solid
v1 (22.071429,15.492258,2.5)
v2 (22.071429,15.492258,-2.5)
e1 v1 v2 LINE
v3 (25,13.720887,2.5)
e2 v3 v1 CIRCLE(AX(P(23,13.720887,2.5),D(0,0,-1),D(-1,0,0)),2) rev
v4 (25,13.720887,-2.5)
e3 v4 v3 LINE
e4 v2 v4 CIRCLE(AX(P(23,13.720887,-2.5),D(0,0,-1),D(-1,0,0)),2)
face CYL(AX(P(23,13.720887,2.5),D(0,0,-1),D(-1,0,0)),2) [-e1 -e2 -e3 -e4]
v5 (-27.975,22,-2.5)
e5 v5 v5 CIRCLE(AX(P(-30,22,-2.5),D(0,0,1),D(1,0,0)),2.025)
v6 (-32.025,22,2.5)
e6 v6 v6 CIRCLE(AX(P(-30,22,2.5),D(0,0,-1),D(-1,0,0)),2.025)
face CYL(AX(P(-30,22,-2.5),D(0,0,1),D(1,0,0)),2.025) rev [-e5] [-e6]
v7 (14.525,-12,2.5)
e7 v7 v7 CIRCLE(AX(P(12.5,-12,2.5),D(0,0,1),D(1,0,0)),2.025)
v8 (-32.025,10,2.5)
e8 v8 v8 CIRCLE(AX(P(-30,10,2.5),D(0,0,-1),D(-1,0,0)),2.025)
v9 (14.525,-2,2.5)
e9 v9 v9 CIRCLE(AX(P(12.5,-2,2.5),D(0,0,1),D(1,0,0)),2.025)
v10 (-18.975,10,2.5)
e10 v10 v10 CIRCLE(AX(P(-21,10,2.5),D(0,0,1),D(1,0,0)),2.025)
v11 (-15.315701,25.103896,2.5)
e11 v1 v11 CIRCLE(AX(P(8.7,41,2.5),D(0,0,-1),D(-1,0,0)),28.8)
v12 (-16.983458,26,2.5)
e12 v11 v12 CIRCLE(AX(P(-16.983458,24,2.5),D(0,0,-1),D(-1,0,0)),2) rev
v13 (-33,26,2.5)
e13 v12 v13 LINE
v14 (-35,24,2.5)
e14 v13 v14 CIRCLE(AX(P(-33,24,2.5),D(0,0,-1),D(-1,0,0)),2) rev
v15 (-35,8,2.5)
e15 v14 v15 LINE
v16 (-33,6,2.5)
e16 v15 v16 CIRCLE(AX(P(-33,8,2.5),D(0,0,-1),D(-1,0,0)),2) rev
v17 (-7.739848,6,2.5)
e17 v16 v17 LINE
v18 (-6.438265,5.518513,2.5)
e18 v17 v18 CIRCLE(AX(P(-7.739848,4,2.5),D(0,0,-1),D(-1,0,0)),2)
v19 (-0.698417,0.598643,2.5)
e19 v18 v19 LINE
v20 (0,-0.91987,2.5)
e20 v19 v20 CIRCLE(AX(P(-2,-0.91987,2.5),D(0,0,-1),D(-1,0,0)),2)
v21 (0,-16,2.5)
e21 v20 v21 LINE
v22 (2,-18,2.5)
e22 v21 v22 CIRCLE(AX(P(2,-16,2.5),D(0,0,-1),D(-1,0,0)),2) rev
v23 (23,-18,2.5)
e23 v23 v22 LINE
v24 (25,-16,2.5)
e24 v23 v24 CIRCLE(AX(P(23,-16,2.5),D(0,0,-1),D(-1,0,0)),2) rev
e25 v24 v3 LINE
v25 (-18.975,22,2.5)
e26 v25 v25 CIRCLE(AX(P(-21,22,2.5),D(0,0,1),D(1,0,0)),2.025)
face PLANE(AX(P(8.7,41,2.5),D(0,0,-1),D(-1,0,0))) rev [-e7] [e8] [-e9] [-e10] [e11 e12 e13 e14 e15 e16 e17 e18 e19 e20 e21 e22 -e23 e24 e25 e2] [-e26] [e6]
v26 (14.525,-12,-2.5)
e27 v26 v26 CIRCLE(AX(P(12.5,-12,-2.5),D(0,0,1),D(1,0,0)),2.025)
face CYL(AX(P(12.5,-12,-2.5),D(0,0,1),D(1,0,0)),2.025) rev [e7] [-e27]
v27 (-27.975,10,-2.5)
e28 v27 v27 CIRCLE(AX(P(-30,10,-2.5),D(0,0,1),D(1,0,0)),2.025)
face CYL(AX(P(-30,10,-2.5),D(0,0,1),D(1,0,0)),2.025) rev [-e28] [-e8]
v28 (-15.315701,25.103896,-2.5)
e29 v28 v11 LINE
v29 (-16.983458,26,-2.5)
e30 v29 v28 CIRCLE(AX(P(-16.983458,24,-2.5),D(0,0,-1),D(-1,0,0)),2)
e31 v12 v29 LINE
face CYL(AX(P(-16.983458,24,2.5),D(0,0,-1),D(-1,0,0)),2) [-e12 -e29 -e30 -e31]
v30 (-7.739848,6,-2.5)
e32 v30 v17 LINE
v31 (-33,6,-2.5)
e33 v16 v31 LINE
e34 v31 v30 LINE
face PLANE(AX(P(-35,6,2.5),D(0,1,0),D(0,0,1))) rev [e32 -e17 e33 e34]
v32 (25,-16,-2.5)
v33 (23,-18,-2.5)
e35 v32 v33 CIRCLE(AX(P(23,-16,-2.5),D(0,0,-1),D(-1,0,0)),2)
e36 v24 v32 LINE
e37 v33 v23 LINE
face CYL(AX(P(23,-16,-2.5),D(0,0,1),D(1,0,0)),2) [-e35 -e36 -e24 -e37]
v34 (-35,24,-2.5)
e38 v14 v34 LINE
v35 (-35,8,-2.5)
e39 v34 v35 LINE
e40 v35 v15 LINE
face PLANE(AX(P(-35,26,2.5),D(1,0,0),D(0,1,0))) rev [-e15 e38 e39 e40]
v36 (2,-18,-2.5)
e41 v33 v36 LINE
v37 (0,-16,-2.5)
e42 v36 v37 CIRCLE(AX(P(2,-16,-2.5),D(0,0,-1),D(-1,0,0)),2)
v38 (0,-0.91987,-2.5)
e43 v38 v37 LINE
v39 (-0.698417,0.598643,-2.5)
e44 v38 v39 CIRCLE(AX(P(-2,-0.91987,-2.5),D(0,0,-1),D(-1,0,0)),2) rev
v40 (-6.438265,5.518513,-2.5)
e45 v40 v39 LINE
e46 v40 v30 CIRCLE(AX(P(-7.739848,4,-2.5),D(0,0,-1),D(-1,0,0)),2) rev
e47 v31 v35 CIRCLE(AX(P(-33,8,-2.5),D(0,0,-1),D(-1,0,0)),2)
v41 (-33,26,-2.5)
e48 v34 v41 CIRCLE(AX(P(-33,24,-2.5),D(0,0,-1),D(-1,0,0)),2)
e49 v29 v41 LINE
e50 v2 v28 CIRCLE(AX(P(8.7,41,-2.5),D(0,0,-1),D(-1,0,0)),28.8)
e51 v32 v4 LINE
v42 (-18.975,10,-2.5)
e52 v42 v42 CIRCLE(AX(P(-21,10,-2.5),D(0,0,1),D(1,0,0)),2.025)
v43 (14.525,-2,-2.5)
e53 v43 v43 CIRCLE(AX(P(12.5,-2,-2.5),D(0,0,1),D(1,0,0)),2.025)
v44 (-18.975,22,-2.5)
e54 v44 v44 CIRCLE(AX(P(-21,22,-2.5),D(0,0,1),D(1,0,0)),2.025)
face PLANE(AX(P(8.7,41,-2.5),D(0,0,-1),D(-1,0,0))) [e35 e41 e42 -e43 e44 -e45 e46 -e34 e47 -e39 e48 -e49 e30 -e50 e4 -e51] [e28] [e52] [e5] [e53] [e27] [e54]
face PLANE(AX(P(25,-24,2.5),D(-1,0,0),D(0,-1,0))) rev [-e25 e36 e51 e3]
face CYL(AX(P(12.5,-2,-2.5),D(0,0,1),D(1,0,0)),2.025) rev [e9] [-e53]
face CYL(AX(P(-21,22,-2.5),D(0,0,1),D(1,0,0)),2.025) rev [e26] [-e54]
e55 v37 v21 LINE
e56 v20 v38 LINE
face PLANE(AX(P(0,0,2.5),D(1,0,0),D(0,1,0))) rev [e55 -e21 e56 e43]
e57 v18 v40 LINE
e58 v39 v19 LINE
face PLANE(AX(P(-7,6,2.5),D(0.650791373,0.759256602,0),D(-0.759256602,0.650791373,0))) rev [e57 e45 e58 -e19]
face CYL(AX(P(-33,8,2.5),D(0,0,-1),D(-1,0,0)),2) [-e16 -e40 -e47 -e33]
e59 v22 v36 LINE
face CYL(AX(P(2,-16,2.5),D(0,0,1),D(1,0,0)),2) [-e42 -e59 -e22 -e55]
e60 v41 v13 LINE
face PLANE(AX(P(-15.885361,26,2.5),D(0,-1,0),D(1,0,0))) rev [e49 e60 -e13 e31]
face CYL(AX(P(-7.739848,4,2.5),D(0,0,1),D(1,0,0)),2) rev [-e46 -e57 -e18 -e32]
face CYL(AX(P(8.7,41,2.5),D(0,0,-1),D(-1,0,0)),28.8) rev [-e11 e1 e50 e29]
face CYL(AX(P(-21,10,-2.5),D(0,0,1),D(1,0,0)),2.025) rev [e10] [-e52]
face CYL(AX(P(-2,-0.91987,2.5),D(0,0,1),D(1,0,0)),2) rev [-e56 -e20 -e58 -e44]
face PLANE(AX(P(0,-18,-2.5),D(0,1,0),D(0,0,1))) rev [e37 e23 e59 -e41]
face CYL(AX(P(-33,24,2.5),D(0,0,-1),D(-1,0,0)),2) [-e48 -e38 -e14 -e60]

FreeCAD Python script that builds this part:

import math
import FreeCAD as App
import Part
import Sketcher
from FreeCAD import Vector
Q = App.Units.Quantity


def edges_at(feature, points):
    """Names of the edges that pass closest to the given points."""
    edges = feature.Shape.Edges
    near = lambda p: min(range(len(edges)), key=lambda i: edges[i].distToShape(Part.Vertex(*p))[0])
    return sorted({f"Edge{near(p) + 1}" for p in points})


def add_polygon(sketch, points):
    """Adds a closed chain of lines whose ends are joined by coincident constraints."""
    first, n = sketch.GeometryCount, len(points)
    for a, b in zip(points, points[1:] + points[:1]):
        sketch.addGeometry(Part.LineSegment(App.Vector(*a, 0), App.Vector(*b, 0)), False)
    for i in range(n):
        sketch.addConstraint(Sketcher.Constraint("Coincident", first + i, 2, first + (i + 1) % n, 1))

doc = App.newDocument("Part")
body = doc.addObject("PartDesign::Body", "Body")

# Sketch on XY plane
sketch1 = doc.addObject("Sketcher::SketchObject", "Sketch")
body.addObject(sketch1)
sketch1.AttachmentSupport = (doc.XY_Plane, [""])
sketch1.MapMode = "FlatFace"
sketch1.addGeometry([
    Part.LineSegment(Vector(0, 0, 0), Vector(0, -24, 0)),  # 0
    Part.LineSegment(Vector(0, -24, 0), Vector(25, -24, 0)),  # 1
    Part.LineSegment(Vector(25, -24, 0), Vector(25, 17, 0)),  # 2
    Part.ArcOfCircle(Part.Circle(Vector(9, 41, 0), Vector(0, 0, 1), 29), math.radians(-149), math.radians(-56)),  # 3
    Part.LineSegment(Vector(-16, 26, 0), Vector(-35, 26, 0)),  # 4
    Part.LineSegment(Vector(-35, 26, 0), Vector(-35, 6, 0)),  # 5
    Part.LineSegment(Vector(-35, 6, 0), Vector(-7, 6, 0)),  # 6
    Part.LineSegment(Vector(-7, 6, 0), Vector(0, 0, 0)),  # 7
], False)
sketch1.addConstraint([
    Sketcher.Constraint("Coincident", 0, 2, 1, 1),
    Sketcher.Constraint("Coincident", 1, 2, 2, 1),
    Sketcher.Constraint("Coincident", 2, 2, 3, 2),
    Sketcher.Constraint("Coincident", 3, 1, 4, 1),
    Sketcher.Constraint("Coincident", 4, 2, 5, 1),
    Sketcher.Constraint("Coincident", 5, 2, 6, 1),
    Sketcher.Constraint("Coincident", 6, 2, 7, 1),
    Sketcher.Constraint("Coincident", 7, 2, 0, 1),
    Sketcher.Constraint("Vertical", 0),
    Sketcher.Constraint("Horizontal", 1),
    Sketcher.Constraint("Vertical", 2),
    Sketcher.Constraint("Horizontal", 4),
    Sketcher.Constraint("Vertical", 5),
    Sketcher.Constraint("Horizontal", 6),
    Sketcher.Constraint("Coincident", 7, 2, -1, 1),
    Sketcher.Constraint("Radius", 3, Q("28.8 mm")),
    Sketcher.Constraint("DistanceX", 1, 1, 1, 2, Q("25 mm")),
    Sketcher.Constraint("DistanceX", 6, 1, 6, 2, Q("28 mm")),
    Sketcher.Constraint("DistanceY", 0, 2, 0, 1, Q("24 mm")),
    Sketcher.Constraint("DistanceY", 5, 2, 5, 1, Q("20 mm")),
    Sketcher.Constraint("DistanceY", -1, 1, 3, 3, Q("41 mm")),
    Sketcher.Constraint("DistanceY", -1, 1, 3, 1, Q("26 mm")),
    Sketcher.Constraint("DistanceX", 4, 2, -1, 1, Q("35 mm")),
    Sketcher.Constraint("DistanceX", -1, 1, 3, 3, Q("8.7 mm")),
])
pad1 = doc.addObject("PartDesign::Pad", "Pad")
body.addObject(pad1)
pad1.Profile = sketch1
pad1.Length = 5
pad1.Midplane = True
doc.recompute()

fillet = doc.addObject("PartDesign::Fillet", "Fillet")
body.addObject(fillet)
fillet.Base = (pad1, edges_at(pad1, [
    (-7, 6, 0),
    (-35, 6, 0),
    (-35, 26, 0),
    (25, -24, 0),
    (0, -24, 0),
    (0, 0, 0),
]))
fillet.Radius = 2
doc.recompute()

fillet2 = doc.addObject("PartDesign::Fillet", "Fillet001")
body.addObject(fillet2)
fillet2.Base = (fillet, edges_at(fillet, [(-15.885, 26, 0), (25, 17.257, 0)]))
fillet2.Radius = 2

# Sketch on XY plane
sketch2 = doc.addObject("Sketcher::SketchObject", "Sketch001")
body.addObject(sketch2)
sketch2.AttachmentSupport = (doc.XY_Plane, [""])
sketch2.MapMode = "FlatFace"
sketch2.AttachmentOffset = App.Placement(Vector(0, 0, 2.5), App.Rotation())
sketch2.addGeometry([
    Part.Circle(Vector(12.5, -2, 0), Vector(0, 0, 1), 2),
    Part.Circle(Vector(12.5, -12, 0), Vector(0, 0, 1), 2),
], False)
sketch2.addConstraint([
    Sketcher.Constraint("Equal", 0, 1),
    Sketcher.Constraint("Vertical", 0, 3, 1, 3),
    Sketcher.Constraint("Diameter", 0, Q("4.05 mm")),
    Sketcher.Constraint("DistanceY", 0, 3, -1, 1, Q("2 mm")),
    Sketcher.Constraint("DistanceY", 1, 3, -1, 1, Q("12 mm")),
    Sketcher.Constraint("DistanceX", -1, 1, 0, 3, Q("12.5 mm")),
])
pocket1 = doc.addObject("PartDesign::Pocket", "Pocket")
body.addObject(pocket1)
pocket1.Profile = sketch2
pocket1.Type = "ThroughAll"

# Sketch on XY plane
sketch3 = doc.addObject("Sketcher::SketchObject", "Sketch002")
body.addObject(sketch3)
sketch3.AttachmentSupport = (doc.XY_Plane, [""])
sketch3.MapMode = "FlatFace"
sketch3.AttachmentOffset = App.Placement(Vector(0, 0, 2.5), App.Rotation())
add_polygon(sketch3, [(0, -18), (0, -24), (25, -24), (25, -18)])  # lines 0-3
sketch3.addConstraint([
    Sketcher.Constraint("Vertical", 0),
    Sketcher.Constraint("Horizontal", 1),
    Sketcher.Constraint("Vertical", 2),
    Sketcher.Constraint("Horizontal", 3),
    Sketcher.Constraint("PointOnObject", 0, 2, -2),
    Sketcher.Constraint("DistanceX", 1, 1, 1, 2, Q("25 mm")),
    Sketcher.Constraint("DistanceY", 0, 2, 0, 1, Q("6 mm")),
    Sketcher.Constraint("DistanceY", 0, 2, -1, 1, Q("24 mm")),
])
pocket2 = doc.addObject("PartDesign::Pocket", "Pocket001")
body.addObject(pocket2)
pocket2.Profile = sketch3
pocket2.Type = "ThroughAll"
doc.recompute()

fillet3 = doc.addObject("PartDesign::Fillet", "Fillet002")
body.addObject(fillet3)
fillet3.Base = (pocket2, edges_at(pocket2, [(0, -18, 0), (25, -18, 0)]))
fillet3.Radius = 2

# Sketch on XY plane
sketch4 = doc.addObject("Sketcher::SketchObject", "Sketch003")
body.addObject(sketch4)
sketch4.AttachmentSupport = (doc.XY_Plane, [""])
sketch4.MapMode = "FlatFace"
sketch4.AttachmentOffset = App.Placement(Vector(0, 0, 2.5), App.Rotation())
sketch4.addGeometry([
    Part.Circle(Vector(-30, 22, 0), Vector(0, 0, 1), 2),
    Part.Circle(Vector(-30, 10, 0), Vector(0, 0, 1), 2),
], False)
sketch4.addConstraint([
    Sketcher.Constraint("Equal", 0, 1),
    Sketcher.Constraint("Vertical", 0, 3, 1, 3),
    Sketcher.Constraint("Diameter", 0, Q("4.05 mm")),
    Sketcher.Constraint("DistanceX", 0, 3, -1, 1, Q("30 mm")),
    Sketcher.Constraint("DistanceY", -1, 1, 0, 3, Q("22 mm")),
    Sketcher.Constraint("DistanceY", -1, 1, 1, 3, Q("10 mm")),
])
pocket3 = doc.addObject("PartDesign::Pocket", "Pocket002")
body.addObject(pocket3)
pocket3.Profile = sketch4
pocket3.Type = "ThroughAll"
pocket3.Midplane = True

# Sketch on XY plane
sketch5 = doc.addObject("Sketcher::SketchObject", "Sketch004")
body.addObject(sketch5)
sketch5.AttachmentSupport = (doc.XY_Plane, [""])
sketch5.MapMode = "FlatFace"
sketch5.AttachmentOffset = App.Placement(Vector(0, 0, 2.5), App.Rotation())
sketch5.addGeometry([
    Part.Circle(Vector(-21, 10, 0), Vector(0, 0, 1), 2),
    Part.Circle(Vector(-21, 22, 0), Vector(0, 0, 1), 2),
], False)
sketch5.addConstraint([
    Sketcher.Constraint("Equal", 0, 1),
    Sketcher.Constraint("Vertical", 0, 3, 1, 3),
    Sketcher.Constraint("Diameter", 0, Q("4.05 mm")),
    Sketcher.Constraint("DistanceX", 0, 3, -1, 1, Q("21 mm")),
    Sketcher.Constraint("DistanceY", -1, 1, 0, 3, Q("10 mm")),
    Sketcher.Constraint("DistanceY", -1, 1, 1, 3, Q("22 mm")),
])
pocket4 = doc.addObject("PartDesign::Pocket", "Pocket003")
body.addObject(pocket4)
pocket4.Profile = sketch5
pocket4.Type = "ThroughAll"
pocket4.Midplane = True

doc.recompute()
